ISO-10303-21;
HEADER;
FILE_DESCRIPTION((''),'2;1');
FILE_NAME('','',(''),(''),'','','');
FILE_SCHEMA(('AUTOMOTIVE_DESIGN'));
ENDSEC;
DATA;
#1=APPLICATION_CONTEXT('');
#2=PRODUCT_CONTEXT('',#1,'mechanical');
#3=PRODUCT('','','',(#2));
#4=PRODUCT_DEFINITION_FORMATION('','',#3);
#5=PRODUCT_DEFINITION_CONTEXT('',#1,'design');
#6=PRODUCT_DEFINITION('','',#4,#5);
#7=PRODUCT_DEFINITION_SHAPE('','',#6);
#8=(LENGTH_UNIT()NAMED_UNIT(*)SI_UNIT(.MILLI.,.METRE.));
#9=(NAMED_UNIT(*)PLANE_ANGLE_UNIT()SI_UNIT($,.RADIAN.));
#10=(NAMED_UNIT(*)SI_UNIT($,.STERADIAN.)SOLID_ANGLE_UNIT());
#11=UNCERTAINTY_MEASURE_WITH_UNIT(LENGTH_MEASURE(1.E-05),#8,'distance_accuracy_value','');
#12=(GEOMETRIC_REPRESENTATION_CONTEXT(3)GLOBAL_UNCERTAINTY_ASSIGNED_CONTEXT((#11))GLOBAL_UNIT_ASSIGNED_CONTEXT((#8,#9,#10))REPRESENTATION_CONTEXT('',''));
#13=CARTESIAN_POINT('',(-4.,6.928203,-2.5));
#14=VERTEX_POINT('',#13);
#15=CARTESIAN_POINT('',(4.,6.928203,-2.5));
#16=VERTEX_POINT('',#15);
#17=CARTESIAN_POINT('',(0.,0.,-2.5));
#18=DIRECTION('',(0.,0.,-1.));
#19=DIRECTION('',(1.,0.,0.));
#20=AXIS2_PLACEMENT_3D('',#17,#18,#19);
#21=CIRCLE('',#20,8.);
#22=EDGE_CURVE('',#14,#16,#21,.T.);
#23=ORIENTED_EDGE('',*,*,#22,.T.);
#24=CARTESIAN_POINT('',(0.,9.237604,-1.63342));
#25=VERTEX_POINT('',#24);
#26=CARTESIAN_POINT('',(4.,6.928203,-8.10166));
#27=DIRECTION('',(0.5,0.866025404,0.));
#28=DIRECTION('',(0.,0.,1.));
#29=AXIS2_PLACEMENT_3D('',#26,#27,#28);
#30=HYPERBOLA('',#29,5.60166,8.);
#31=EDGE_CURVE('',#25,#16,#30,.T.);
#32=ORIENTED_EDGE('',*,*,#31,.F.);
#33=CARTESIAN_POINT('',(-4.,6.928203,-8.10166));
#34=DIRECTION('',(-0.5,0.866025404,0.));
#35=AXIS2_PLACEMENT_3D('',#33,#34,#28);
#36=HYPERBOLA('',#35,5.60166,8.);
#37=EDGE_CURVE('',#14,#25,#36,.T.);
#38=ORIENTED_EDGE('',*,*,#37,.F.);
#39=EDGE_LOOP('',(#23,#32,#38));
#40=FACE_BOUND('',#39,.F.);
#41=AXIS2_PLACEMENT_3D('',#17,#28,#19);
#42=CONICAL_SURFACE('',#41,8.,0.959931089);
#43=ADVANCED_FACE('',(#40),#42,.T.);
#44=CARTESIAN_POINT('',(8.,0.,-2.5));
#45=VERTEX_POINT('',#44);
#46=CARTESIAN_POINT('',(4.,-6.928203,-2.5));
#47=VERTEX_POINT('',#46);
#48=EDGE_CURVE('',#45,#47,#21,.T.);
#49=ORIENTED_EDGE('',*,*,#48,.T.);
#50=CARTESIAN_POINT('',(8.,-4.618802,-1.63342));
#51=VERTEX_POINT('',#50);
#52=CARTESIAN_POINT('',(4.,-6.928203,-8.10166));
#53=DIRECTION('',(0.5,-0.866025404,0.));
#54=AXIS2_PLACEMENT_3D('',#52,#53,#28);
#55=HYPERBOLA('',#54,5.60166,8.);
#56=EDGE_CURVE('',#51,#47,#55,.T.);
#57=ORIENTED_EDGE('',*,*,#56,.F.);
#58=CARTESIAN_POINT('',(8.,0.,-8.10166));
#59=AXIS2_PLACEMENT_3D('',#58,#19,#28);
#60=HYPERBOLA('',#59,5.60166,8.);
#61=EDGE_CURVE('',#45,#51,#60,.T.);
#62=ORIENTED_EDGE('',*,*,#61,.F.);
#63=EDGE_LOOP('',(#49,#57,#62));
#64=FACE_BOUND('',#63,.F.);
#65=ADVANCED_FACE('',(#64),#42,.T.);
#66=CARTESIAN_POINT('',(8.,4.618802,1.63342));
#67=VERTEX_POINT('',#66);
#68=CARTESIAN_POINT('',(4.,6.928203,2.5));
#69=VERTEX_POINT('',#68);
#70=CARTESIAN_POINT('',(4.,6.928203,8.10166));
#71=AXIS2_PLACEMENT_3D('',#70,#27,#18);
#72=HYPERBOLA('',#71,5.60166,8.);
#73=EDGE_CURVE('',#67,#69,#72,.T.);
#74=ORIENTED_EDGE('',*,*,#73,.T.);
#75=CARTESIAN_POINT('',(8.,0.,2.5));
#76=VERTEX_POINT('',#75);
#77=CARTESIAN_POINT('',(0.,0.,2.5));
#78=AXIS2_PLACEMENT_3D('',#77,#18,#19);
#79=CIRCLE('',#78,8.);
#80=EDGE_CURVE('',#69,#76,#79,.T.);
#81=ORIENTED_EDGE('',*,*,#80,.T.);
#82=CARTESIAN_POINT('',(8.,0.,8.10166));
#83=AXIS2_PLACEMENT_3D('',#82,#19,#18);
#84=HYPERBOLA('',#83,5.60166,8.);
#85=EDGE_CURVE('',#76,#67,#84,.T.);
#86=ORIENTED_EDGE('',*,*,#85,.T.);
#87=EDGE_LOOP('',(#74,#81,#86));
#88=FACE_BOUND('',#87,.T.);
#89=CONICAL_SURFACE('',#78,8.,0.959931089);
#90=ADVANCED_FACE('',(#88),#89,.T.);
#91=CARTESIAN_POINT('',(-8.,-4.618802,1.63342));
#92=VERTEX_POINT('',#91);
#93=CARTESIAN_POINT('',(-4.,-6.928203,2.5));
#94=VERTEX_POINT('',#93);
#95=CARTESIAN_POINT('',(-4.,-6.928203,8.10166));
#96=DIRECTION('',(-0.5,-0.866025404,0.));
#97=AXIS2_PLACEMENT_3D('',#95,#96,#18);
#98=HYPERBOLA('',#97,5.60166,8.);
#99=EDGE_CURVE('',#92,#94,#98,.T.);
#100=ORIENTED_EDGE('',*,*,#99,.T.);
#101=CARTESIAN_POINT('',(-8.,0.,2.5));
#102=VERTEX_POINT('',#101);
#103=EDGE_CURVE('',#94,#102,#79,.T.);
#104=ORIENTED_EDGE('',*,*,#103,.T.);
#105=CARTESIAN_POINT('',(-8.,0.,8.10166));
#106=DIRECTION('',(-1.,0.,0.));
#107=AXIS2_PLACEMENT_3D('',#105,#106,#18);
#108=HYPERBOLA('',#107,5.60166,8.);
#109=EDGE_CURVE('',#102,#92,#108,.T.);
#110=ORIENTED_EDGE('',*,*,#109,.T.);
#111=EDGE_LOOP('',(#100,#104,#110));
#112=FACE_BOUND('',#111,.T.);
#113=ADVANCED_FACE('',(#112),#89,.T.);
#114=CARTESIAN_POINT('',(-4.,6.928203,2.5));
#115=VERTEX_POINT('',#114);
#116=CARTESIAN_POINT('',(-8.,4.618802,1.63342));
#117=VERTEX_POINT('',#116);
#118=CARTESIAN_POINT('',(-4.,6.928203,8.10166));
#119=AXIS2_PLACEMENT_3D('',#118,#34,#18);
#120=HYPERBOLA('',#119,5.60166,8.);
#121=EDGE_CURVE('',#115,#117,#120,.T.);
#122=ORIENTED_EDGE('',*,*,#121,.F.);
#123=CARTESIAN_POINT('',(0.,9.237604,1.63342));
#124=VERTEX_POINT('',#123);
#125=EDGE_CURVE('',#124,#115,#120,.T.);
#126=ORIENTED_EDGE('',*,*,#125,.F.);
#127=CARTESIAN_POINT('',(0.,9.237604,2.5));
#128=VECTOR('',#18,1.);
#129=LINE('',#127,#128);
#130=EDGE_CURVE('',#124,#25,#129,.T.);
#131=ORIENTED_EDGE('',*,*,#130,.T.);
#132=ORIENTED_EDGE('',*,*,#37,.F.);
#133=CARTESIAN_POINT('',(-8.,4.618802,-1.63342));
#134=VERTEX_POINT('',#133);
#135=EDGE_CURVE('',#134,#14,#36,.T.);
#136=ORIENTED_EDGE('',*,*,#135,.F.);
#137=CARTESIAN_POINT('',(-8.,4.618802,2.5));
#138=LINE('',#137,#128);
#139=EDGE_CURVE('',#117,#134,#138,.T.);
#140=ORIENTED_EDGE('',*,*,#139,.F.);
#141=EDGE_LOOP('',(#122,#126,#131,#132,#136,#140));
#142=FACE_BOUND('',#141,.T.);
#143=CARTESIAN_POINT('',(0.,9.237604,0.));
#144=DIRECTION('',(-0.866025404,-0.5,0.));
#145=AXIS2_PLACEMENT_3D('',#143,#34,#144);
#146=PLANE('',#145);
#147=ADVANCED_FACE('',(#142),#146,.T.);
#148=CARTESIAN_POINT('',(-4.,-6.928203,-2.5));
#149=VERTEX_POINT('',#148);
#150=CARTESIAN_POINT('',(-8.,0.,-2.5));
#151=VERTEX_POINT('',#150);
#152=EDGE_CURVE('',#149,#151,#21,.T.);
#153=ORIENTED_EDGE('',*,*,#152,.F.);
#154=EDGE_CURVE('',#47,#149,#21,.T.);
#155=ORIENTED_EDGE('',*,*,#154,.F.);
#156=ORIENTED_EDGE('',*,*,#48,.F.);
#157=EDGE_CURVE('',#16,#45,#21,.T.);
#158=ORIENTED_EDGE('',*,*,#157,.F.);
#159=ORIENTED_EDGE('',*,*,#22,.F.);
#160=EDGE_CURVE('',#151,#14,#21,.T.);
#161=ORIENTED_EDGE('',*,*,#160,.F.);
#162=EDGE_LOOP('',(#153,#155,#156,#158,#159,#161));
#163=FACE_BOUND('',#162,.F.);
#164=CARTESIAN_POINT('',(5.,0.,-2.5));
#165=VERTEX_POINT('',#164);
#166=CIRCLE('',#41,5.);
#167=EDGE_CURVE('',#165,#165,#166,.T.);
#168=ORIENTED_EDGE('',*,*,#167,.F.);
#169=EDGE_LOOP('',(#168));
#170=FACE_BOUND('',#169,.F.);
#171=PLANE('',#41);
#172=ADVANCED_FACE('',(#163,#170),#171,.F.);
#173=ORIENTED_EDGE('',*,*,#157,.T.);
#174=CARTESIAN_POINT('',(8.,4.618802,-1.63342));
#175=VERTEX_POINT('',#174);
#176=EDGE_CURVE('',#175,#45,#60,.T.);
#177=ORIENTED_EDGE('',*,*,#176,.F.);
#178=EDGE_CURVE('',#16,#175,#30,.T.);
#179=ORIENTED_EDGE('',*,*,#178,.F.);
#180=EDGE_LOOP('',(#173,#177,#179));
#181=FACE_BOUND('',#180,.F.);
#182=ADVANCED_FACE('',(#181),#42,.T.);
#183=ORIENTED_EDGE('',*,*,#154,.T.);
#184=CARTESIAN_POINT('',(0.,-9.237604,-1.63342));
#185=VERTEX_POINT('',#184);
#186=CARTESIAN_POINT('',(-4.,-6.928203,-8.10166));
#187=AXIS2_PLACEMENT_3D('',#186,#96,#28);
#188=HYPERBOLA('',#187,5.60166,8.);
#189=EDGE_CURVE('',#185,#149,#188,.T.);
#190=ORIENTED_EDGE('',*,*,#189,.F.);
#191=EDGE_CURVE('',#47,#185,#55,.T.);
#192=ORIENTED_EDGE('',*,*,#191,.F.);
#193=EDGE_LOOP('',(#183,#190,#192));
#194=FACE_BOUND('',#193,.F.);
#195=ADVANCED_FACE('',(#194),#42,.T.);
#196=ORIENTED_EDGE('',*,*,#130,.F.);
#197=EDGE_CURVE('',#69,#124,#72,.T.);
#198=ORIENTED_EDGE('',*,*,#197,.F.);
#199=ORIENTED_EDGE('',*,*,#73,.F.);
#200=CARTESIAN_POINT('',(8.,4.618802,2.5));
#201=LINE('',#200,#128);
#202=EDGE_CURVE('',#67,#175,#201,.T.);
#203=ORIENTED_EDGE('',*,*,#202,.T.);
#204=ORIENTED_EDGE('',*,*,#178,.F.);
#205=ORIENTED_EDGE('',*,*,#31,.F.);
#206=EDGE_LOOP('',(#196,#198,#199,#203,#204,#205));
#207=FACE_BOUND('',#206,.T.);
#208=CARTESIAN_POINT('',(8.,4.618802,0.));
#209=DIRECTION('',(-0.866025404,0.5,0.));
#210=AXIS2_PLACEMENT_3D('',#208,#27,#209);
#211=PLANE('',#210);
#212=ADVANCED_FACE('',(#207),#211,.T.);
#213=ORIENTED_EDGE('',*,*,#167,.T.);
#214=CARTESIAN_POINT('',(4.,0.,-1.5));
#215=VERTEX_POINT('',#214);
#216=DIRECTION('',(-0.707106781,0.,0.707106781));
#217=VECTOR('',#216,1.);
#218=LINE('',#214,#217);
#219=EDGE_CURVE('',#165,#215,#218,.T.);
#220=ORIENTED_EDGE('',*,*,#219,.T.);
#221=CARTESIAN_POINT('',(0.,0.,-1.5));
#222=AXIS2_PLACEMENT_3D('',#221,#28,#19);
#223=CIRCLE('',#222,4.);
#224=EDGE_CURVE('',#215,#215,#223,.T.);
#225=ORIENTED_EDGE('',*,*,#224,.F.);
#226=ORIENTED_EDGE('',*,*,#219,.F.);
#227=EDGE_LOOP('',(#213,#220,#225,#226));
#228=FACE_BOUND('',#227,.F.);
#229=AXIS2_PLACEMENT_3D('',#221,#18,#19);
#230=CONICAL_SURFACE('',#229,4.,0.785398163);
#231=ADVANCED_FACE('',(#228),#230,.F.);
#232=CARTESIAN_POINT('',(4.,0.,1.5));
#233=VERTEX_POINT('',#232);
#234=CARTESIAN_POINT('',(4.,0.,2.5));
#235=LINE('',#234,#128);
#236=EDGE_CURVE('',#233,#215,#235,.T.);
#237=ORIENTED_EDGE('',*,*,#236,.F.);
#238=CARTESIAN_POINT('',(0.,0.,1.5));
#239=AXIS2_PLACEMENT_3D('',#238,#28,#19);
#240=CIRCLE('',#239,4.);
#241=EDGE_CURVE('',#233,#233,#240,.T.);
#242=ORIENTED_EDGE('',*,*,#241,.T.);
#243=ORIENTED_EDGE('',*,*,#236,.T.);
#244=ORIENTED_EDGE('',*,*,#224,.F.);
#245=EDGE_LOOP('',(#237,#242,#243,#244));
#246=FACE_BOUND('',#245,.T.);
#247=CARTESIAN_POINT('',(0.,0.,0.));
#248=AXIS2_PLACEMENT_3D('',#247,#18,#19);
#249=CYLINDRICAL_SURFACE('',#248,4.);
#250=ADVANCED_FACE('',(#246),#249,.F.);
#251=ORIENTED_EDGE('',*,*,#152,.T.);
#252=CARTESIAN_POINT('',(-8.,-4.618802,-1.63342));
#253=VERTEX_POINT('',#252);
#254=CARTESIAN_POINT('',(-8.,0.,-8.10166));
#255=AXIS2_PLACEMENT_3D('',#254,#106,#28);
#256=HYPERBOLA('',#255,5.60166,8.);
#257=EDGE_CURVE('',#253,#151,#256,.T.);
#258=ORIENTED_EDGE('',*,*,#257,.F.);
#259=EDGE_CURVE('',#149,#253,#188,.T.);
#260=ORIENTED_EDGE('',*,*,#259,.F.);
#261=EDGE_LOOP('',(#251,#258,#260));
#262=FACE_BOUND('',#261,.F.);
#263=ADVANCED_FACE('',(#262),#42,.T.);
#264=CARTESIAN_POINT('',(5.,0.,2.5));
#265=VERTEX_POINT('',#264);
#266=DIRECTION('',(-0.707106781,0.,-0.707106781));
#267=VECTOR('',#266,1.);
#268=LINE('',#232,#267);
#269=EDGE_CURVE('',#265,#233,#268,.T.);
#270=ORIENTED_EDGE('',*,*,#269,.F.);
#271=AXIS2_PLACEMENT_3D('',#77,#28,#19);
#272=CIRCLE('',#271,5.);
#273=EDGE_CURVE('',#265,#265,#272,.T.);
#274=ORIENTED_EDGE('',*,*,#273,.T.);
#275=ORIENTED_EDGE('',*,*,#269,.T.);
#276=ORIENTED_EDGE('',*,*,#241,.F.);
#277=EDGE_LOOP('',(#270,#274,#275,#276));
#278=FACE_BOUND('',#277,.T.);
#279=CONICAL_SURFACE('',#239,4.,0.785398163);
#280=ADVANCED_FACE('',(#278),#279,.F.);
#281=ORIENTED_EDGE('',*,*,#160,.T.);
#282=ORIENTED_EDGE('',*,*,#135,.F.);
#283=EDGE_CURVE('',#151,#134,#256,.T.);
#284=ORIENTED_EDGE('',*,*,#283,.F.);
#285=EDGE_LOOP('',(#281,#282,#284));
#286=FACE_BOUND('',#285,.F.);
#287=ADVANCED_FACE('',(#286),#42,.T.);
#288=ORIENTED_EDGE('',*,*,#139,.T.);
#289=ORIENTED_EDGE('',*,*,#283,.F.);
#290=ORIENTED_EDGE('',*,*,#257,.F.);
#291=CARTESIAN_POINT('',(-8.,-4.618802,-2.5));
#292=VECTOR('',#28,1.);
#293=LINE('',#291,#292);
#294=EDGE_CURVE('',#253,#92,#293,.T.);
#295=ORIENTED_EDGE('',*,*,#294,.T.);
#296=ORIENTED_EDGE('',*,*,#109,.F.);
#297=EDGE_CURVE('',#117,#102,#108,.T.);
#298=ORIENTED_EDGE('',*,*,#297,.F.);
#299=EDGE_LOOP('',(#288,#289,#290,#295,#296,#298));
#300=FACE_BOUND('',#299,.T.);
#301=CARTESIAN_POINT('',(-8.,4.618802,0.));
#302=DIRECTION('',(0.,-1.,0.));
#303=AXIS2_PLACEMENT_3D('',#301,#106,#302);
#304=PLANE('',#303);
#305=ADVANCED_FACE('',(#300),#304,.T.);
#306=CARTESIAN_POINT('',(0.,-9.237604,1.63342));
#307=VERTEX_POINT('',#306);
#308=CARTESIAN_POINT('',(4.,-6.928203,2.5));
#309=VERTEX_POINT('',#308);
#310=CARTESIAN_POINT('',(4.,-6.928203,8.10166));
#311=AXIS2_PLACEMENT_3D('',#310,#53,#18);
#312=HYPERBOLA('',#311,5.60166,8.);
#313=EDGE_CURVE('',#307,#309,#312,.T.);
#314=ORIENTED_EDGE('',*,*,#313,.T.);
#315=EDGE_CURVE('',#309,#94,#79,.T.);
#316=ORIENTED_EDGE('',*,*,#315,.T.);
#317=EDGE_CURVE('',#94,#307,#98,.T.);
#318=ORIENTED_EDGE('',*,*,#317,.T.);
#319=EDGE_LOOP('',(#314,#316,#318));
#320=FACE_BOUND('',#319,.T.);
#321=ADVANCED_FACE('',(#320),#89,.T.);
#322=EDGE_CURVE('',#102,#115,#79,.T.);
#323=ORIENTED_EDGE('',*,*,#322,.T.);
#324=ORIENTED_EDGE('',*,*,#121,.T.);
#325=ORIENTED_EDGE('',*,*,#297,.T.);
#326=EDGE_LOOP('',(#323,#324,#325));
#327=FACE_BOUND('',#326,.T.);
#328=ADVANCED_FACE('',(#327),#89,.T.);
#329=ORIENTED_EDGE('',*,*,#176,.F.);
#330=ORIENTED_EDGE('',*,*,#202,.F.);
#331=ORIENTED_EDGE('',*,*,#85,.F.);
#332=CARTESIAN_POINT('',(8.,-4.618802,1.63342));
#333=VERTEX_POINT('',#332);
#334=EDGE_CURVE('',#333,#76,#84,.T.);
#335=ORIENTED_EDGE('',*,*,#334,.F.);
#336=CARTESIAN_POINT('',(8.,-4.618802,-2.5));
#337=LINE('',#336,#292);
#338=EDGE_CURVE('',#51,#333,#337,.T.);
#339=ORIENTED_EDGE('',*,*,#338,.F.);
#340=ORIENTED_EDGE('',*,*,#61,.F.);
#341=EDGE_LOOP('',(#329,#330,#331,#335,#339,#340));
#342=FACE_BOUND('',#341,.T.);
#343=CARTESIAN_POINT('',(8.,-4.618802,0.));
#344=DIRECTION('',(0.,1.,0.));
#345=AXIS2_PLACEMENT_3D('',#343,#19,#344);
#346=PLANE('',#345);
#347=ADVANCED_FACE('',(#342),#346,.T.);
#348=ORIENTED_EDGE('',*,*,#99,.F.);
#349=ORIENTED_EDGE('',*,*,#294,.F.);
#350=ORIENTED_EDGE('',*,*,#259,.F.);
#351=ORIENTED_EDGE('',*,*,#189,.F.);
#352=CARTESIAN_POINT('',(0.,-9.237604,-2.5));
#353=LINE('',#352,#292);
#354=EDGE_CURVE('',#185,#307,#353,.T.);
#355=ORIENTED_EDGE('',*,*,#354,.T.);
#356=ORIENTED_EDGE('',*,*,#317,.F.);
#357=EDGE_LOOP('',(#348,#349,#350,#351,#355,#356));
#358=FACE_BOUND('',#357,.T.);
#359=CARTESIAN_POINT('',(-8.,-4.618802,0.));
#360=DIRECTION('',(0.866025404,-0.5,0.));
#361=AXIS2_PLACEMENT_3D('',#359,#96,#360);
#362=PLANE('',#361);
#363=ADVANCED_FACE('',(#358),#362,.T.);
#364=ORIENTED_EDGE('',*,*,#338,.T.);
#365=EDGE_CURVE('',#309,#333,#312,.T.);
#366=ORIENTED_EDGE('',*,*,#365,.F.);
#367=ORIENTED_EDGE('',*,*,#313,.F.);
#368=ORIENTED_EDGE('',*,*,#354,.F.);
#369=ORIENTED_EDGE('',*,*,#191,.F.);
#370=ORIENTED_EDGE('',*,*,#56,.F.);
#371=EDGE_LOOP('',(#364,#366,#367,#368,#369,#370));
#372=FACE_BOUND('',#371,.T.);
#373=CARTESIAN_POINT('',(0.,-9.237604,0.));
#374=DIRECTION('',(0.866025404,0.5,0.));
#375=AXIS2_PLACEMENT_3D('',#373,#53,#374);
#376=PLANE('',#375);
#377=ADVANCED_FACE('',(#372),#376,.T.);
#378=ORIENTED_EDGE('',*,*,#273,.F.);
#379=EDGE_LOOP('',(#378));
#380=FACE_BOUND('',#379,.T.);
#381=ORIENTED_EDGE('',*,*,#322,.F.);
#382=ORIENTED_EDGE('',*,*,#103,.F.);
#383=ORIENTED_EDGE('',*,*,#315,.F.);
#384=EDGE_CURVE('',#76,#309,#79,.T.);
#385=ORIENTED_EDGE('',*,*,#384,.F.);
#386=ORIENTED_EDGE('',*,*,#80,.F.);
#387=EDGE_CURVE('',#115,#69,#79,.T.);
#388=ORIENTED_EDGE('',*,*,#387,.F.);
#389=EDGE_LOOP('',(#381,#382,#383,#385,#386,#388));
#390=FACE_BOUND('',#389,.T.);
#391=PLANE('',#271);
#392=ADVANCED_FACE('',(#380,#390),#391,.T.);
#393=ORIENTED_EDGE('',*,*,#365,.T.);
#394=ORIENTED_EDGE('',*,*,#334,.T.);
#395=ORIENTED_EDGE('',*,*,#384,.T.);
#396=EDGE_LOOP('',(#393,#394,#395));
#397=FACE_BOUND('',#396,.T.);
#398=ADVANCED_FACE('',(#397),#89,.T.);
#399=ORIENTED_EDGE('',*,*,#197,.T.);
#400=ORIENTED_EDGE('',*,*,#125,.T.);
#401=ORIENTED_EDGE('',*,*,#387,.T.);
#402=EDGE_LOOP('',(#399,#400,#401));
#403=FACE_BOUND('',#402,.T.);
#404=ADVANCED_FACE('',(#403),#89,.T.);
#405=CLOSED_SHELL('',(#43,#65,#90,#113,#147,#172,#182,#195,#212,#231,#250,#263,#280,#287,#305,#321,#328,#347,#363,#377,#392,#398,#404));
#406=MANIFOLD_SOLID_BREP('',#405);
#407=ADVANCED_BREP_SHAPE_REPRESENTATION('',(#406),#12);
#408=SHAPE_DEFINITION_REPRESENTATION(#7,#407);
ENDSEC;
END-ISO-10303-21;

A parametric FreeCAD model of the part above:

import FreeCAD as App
import Part
import Sketcher

V = App.Vector
Q = App.Units.Quantity


def edges_at(feature, points):
    """Names of the edges that pass closest to the given points."""
    edges = feature.Shape.Edges
    near = lambda p: min(range(len(edges)), key=lambda i: edges[i].distToShape(Part.Vertex(*p))[0])
    return sorted({f"Edge{near(p) + 1}" for p in points})


def add_polygon(sketch, points):
    """Adds a closed chain of lines whose ends are joined by coincident constraints."""
    first, n = sketch.GeometryCount, len(points)
    for a, b in zip(points, points[1:] + points[:1]):
        sketch.addGeometry(Part.LineSegment(App.Vector(*a, 0), App.Vector(*b, 0)), False)
    for i in range(n):
        sketch.addConstraint(Sketcher.Constraint("Coincident", first + i, 2, first + (i + 1) % n, 1))

doc = App.newDocument("Part")
params = doc.addObject("Spreadsheet::Sheet", "Params")
for row, (alias, value) in enumerate([
    ("sketch1_diameter", "8 mm"),
    ("pad1_length", "5 mm"),
    ("sketch2_diameter", "16 mm"),
    ("pocket1_length", "6 mm"),
    ("pocket1_taper", "55 deg"),
    ("chamfer_size", "1 mm"),
], start=1):
    params.set(f"A{row}", alias)
    params.set(f"B{row}", "=" + value)
    params.setAlias(f"B{row}", alias)

body = doc.addObject("PartDesign::Body", "Body")

# Sketch on XY plane
sketch1 = body.newObject("Sketcher::SketchObject", "Sketch")
sketch1.AttachmentSupport = (doc.getObject("XY_Plane"), [""])
sketch1.MapMode = "FlatFace"
add_polygon(sketch1, [(-8, 4.6), (-8, -4.6), (0, -9.2), (8, -4.6), (8, 4.6), (0, 9.2)])  # lines 0-5
sketch1.addGeometry(Part.Circle(V(0, 0, 0), V(0, 0, 1), 4), False)  # 6
sketch1.addConstraint(Sketcher.Constraint("Vertical", 0))
sketch1.addConstraint(Sketcher.Constraint("Vertical", 3))
sketch1.addConstraint(Sketcher.Constraint("Coincident", 6, 3, -1, 1))
sketch1.addConstraint(Sketcher.Constraint("Symmetric", 0, 2, 3, 2, -1, 1))
sketch1.addConstraint(Sketcher.Constraint("Symmetric", 1, 2, 4, 2, -1, 1))
sketch1.addConstraint(Sketcher.Constraint("PointOnObject", 1, 2, -2))
sketch1.addConstraint(Sketcher.Constraint("Parallel", 2, 5))
sketch1.addConstraint(Sketcher.Constraint("Horizontal", 0, 2, 2, 2))
sketch1.addConstraint(Sketcher.Constraint("Diameter", 6, 8.0))
sketch1.addConstraint(Sketcher.Constraint("Angle", 1, Q("-30 deg")))
sketch1.addConstraint(Sketcher.Constraint("DistanceX", 0, 2, -1, 1, 8.0))
sketch1.addConstraint(Sketcher.Constraint("DistanceY", 0, 2, 0, 1, 9.237604))
sketch1.setExpression("Constraints[14]", "Params.sketch1_diameter")
pad1 = body.newObject("PartDesign::Pad", "Pad")
pad1.Profile = sketch1
pad1.setExpression("Length", "Params.pad1_length")
pad1.Midplane = True

# Sketch on XY plane
sketch2 = body.newObject("Sketcher::SketchObject", "Sketch001")
sketch2.AttachmentSupport = (doc.getObject("XY_Plane"), [""])
sketch2.MapMode = "FlatFace"
sketch2.AttachmentOffset = App.Placement(V(0, 0, 2.5), App.Rotation())
add_polygon(sketch2, [(-20, 21), (-20, -21), (20, -21), (20, 21)])  # lines 0-3
sketch2.addGeometry(Part.Circle(V(0, 0, 0), V(0, 0, 1), 8), False)  # 4
sketch2.addConstraint(Sketcher.Constraint("Vertical", 0))
sketch2.addConstraint(Sketcher.Constraint("Horizontal", 1))
sketch2.addConstraint(Sketcher.Constraint("Vertical", 2))
sketch2.addConstraint(Sketcher.Constraint("Horizontal", 3))
sketch2.addConstraint(Sketcher.Constraint("Coincident", 4, 3, -1, 1))
sketch2.addConstraint(Sketcher.Constraint("Symmetric", 0, 2, 2, 2, -1, 1))
sketch2.addConstraint(Sketcher.Constraint("Diameter", 4, 16.0))
sketch2.addConstraint(Sketcher.Constraint("DistanceX", 1, 1, 1, 2, 40.128))
sketch2.addConstraint(Sketcher.Constraint("DistanceY", 0, 2, 0, 1, 42.604))
sketch2.setExpression("Constraints[10]", "Params.sketch2_diameter")
pocket1 = body.newObject("PartDesign::Pocket", "Pocket")
pocket1.Profile = sketch2
pocket1.setExpression("Length", "Params.pocket1_length")
pocket1.setExpression("TaperAngle", "Params.pocket1_taper")
doc.recompute()

mirrored = body.newObject("PartDesign::Mirrored", "Mirrored")
mirrored.Originals = [pocket1]
mirrored.MirrorPlane = (doc.getObject("XY_Plane"), [""])
body.Tip = mirrored
doc.recompute()

chamfer = body.newObject("PartDesign::Chamfer", "Chamfer")
chamfer.Base = (mirrored, edges_at(mirrored, [(-4, 0, -2.5), (-4, 0, 2.5)]))
chamfer.setExpression("Size", "Params.chamfer_size")

doc.recompute()
